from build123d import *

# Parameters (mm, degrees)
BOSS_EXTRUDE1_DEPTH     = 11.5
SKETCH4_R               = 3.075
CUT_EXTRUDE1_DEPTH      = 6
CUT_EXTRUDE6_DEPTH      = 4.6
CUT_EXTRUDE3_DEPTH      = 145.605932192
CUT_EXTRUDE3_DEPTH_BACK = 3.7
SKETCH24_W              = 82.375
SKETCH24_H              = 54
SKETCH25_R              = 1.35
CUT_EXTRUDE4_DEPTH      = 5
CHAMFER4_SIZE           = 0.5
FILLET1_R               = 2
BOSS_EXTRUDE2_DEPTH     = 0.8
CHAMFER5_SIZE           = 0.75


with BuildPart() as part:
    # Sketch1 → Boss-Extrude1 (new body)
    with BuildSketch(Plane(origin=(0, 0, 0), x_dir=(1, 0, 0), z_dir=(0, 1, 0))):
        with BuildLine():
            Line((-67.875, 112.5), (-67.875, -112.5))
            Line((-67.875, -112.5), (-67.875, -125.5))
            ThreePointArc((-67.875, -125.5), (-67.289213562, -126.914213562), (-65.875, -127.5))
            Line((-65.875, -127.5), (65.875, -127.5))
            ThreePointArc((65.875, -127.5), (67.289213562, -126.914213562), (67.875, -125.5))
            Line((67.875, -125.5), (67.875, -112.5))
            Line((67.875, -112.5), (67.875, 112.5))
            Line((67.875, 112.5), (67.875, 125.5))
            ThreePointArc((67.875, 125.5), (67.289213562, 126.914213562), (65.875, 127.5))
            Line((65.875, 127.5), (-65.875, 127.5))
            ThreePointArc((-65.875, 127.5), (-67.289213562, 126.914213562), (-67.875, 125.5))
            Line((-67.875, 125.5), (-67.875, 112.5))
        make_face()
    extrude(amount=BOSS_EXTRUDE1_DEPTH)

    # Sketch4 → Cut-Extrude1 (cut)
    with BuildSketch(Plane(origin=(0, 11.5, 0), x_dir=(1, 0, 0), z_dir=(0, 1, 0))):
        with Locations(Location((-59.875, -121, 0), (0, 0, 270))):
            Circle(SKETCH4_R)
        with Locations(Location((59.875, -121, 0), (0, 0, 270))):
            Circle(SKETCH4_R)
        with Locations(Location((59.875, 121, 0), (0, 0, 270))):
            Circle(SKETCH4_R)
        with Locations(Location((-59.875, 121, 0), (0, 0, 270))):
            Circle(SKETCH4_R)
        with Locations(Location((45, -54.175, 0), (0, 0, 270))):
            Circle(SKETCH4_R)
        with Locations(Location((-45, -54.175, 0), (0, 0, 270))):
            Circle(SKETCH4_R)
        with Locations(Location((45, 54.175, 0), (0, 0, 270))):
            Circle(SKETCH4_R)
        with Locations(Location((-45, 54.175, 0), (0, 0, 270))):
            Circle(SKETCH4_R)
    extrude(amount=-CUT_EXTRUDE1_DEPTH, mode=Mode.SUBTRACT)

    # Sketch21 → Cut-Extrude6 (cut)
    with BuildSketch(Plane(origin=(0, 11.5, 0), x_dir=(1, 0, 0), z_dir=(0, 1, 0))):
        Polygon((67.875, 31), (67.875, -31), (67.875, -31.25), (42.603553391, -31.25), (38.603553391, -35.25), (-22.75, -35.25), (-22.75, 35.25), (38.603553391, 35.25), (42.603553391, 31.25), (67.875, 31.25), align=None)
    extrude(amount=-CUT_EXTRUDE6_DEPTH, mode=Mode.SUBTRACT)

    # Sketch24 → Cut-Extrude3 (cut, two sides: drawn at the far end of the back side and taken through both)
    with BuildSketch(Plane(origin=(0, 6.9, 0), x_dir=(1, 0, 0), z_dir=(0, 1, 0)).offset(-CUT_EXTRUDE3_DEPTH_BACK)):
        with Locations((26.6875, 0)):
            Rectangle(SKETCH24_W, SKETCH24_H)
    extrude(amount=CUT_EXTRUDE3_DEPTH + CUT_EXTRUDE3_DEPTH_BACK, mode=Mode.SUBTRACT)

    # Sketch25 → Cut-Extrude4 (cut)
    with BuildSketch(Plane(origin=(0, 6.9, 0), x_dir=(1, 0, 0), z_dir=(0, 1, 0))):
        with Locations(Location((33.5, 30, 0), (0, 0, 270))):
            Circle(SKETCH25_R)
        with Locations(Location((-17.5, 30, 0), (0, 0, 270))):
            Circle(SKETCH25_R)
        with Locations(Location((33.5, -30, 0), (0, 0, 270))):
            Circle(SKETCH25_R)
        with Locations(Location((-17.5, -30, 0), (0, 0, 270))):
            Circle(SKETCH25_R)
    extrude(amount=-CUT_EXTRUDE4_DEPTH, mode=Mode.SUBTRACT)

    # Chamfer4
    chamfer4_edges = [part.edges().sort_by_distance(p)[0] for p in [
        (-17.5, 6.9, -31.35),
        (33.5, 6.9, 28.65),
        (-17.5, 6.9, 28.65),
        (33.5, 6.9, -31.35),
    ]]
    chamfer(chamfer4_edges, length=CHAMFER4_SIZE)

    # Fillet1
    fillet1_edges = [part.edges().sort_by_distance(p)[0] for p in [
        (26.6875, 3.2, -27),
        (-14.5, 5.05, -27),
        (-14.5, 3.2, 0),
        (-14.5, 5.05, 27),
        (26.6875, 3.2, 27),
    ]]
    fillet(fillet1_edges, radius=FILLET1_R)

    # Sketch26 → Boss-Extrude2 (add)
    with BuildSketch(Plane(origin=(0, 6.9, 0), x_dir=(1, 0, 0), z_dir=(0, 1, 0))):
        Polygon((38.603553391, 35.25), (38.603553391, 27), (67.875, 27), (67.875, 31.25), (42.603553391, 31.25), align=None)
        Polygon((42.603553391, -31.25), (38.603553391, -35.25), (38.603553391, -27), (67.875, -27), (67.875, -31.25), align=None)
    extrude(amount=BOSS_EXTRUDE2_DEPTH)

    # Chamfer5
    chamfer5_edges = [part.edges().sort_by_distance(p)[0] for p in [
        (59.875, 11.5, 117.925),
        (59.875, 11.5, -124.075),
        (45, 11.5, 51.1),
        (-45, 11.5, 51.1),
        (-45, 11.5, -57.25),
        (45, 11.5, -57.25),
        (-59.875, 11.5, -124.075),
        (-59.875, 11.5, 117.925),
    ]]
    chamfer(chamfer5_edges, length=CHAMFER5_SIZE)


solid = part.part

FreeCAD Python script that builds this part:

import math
import FreeCAD as App
import Part
import Sketcher

V = App.Vector
Q = App.Units.Quantity


def edges_at(feature, points):
    """Names of the edges that pass closest to the given points."""
    edges = feature.Shape.Edges
    near = lambda p: min(range(len(edges)), key=lambda i: edges[i].distToShape(Part.Vertex(*p))[0])
    return sorted({f"Edge{near(p) + 1}" for p in points})


def add_polygon(sketch, points):
    """Adds a closed chain of lines whose ends are joined by coincident constraints."""
    first, n = sketch.GeometryCount, len(points)
    for a, b in zip(points, points[1:] + points[:1]):
        sketch.addGeometry(Part.LineSegment(App.Vector(*a, 0), App.Vector(*b, 0)), False)
    for i in range(n):
        sketch.addConstraint(Sketcher.Constraint("Coincident", first + i, 2, first + (i + 1) % n, 1))

doc = App.newDocument("Part")
body = doc.addObject("PartDesign::Body", "Body")

sketch1 = body.newObject("Sketcher::SketchObject", "Sketch")
sketch1.AttachmentSupport = (doc.getObject("XZ_Plane"), [""])
sketch1.MapMode = "FlatFace"
sketch1.addGeometry(Part.ArcOfCircle(Part.Circle(V(-65.9, 125.5, 0), V(0, 0, 1), 2), math.radians(90), math.radians(180)), False)
sketch1.addGeometry(Part.LineSegment(V(-65.9, 127.5, 0), V(65.9, 127.5, 0)), False)
sketch1.addGeometry(Part.ArcOfCircle(Part.Circle(V(65.9, 125.5, 0), V(0, 0, 1), 2), math.radians(0), math.radians(90)), False)
sketch1.addGeometry(Part.LineSegment(V(67.9, 125.5, 0), V(67.9, -125.5, 0)), False)
sketch1.addGeometry(Part.ArcOfCircle(Part.Circle(V(65.9, -125.5, 0), V(0, 0, 1), 2), math.radians(-90), math.radians(0)), False)
sketch1.addGeometry(Part.LineSegment(V(65.9, -127.5, 0), V(-65.9, -127.5, 0)), False)
sketch1.addGeometry(Part.ArcOfCircle(Part.Circle(V(-65.9, -125.5, 0), V(0, 0, 1), 2), math.radians(-180), math.radians(-90)), False)
sketch1.addGeometry(Part.LineSegment(V(-67.9, -125.5, 0), V(-67.9, 125.5, 0)), False)
sketch1.addConstraint(Sketcher.Constraint("Tangent", 0, 1, 1, 1))
sketch1.addConstraint(Sketcher.Constraint("Tangent", 1, 2, 2, 2))
sketch1.addConstraint(Sketcher.Constraint("Tangent", 2, 1, 3, 1))
sketch1.addConstraint(Sketcher.Constraint("Tangent", 3, 2, 4, 2))
sketch1.addConstraint(Sketcher.Constraint("Tangent", 4, 1, 5, 1))
sketch1.addConstraint(Sketcher.Constraint("Tangent", 5, 2, 6, 2))
sketch1.addConstraint(Sketcher.Constraint("Tangent", 6, 1, 7, 1))
sketch1.addConstraint(Sketcher.Constraint("Tangent", 7, 2, 0, 2))
sketch1.addConstraint(Sketcher.Constraint("Horizontal", 1))
sketch1.addConstraint(Sketcher.Constraint("Vertical", 3))
sketch1.addConstraint(Sketcher.Constraint("Horizontal", 5))
sketch1.addConstraint(Sketcher.Constraint("Vertical", 7))
sketch1.addConstraint(Sketcher.Constraint("Equal", 0, 2))
sketch1.addConstraint(Sketcher.Constraint("Equal", 2, 4))
sketch1.addConstraint(Sketcher.Constraint("Equal", 4, 6))
sketch1.addConstraint(Sketcher.Constraint("Symmetric", 0, 3, 4, 3, -1, 1))
sketch1.addConstraint(Sketcher.Constraint("Radius", 0, Q("2 mm")))
sketch1.addConstraint(Sketcher.Constraint("DistanceY", 3, 2, 3, 1, Q("251 mm")))
sketch1.addConstraint(Sketcher.Constraint("DistanceX", 1, 1, 1, 2, Q("131.75 mm")))
pad1 = body.newObject("PartDesign::Pad", "Pad")
pad1.Profile = sketch1
pad1.Length = 11.5
pad1.Reversed = True

sketch2 = body.newObject("Sketcher::SketchObject", "Sketch001")
sketch2.AttachmentSupport = (doc.getObject("XZ_Plane"), [""])
sketch2.MapMode = "FlatFace"
sketch2.AttachmentOffset = App.Placement(V(0, 0, -11.5), App.Rotation())
sketch2.addGeometry(Part.Circle(V(-59.9, 121, 0), V(0, 0, 1), 3.1), False)
sketch2.addGeometry(Part.Circle(V(59.9, 121, 0), V(0, 0, 1), 3.1), False)
sketch2.addGeometry(Part.Circle(V(59.9, -121, 0), V(0, 0, 1), 3.1), False)
sketch2.addGeometry(Part.Circle(V(-59.9, -121, 0), V(0, 0, 1), 3.1), False)
sketch2.addGeometry(Part.Circle(V(45, 54.2, 0), V(0, 0, 1), 3.1), False)
sketch2.addGeometry(Part.Circle(V(-45, 54.2, 0), V(0, 0, 1), 3.1), False)
sketch2.addGeometry(Part.Circle(V(45, -54.2, 0), V(0, 0, 1), 3.1), False)
sketch2.addGeometry(Part.Circle(V(-45, -54.2, 0), V(0, 0, 1), 3.1), False)
sketch2.addConstraint(Sketcher.Constraint("Equal", 0, 1))
sketch2.addConstraint(Sketcher.Constraint("Equal", 1, 2))
sketch2.addConstraint(Sketcher.Constraint("Equal", 2, 3))
sketch2.addConstraint(Sketcher.Constraint("Equal", 3, 4))
sketch2.addConstraint(Sketcher.Constraint("Equal", 4, 5))
sketch2.addConstraint(Sketcher.Constraint("Equal", 5, 6))
sketch2.addConstraint(Sketcher.Constraint("Equal", 6, 7))
sketch2.addConstraint(Sketcher.Constraint("Symmetric", 0, 3, 2, 3, -1, 1))
sketch2.addConstraint(Sketcher.Constraint("Symmetric", 1, 3, 3, 3, -1, 1))
sketch2.addConstraint(Sketcher.Constraint("Symmetric", 5, 3, 6, 3, -1, 1))
sketch2.addConstraint(Sketcher.Constraint("Symmetric", 4, 3, 7, 3, -1, 1))
sketch2.addConstraint(Sketcher.Constraint("Symmetric", 0, 3, 1, 3, -2))
sketch2.addConstraint(Sketcher.Constraint("Symmetric", 4, 3, 5, 3, -2))
sketch2.addConstraint(Sketcher.Constraint("Diameter", 0, Q("6.15 mm")))
sketch2.addConstraint(Sketcher.Constraint("DistanceY", -1, 1, 0, 3, Q("121 mm")))
sketch2.addConstraint(Sketcher.Constraint("DistanceX", -1, 1, 4, 3, Q("45 mm")))
sketch2.addConstraint(Sketcher.Constraint("DistanceX", 0, 3, 1, 3, Q("119.75 mm")))
sketch2.addConstraint(Sketcher.Constraint("DistanceY", 6, 3, 4, 3, Q("108.35 mm")))
pocket1 = body.newObject("PartDesign::Pocket", "Pocket")
pocket1.Profile = sketch2
pocket1.Length = 6
pocket1.Reversed = True

sketch3 = body.newObject("Sketcher::SketchObject", "Sketch002")
sketch3.AttachmentSupport = (doc.getObject("XZ_Plane"), [""])
sketch3.MapMode = "FlatFace"
sketch3.AttachmentOffset = App.Placement(V(0, 0, -11.5), App.Rotation())
add_polygon(sketch3, [(68, 31), (68, -31), (43, -31), (39, -35), (-23, -35), (-23, 35), (39, 35), (43, 31)])
sketch3.addConstraint(Sketcher.Constraint("Vertical", 0))
sketch3.addConstraint(Sketcher.Constraint("Horizontal", 1))
sketch3.addConstraint(Sketcher.Constraint("Horizontal", 3))
sketch3.addConstraint(Sketcher.Constraint("Vertical", 4))
sketch3.addConstraint(Sketcher.Constraint("Horizontal", 5))
sketch3.addConstraint(Sketcher.Constraint("Horizontal", 7))
sketch3.addConstraint(Sketcher.Constraint("Symmetric", 2, 2, 5, 2, -1))
sketch3.addConstraint(Sketcher.Constraint("Symmetric", 1, 2, 6, 2, -1))
sketch3.addConstraint(Sketcher.Constraint("Perpendicular", 2, 6))
sketch3.addConstraint(Sketcher.Constraint("DistanceY", 0, 2, 0, 1, Q("62.5 mm")))
sketch3.addConstraint(Sketcher.Constraint("DistanceY", 4, 1, 4, 2, Q("70.5 mm")))
sketch3.addConstraint(Sketcher.Constraint("DistanceX", 3, 2, -1, 1, Q("22.75 mm")))
sketch3.addConstraint(Sketcher.Constraint("DistanceX", -1, 1, 0, 2, Q("67.875 mm")))
sketch3.addConstraint(Sketcher.Constraint("DistanceX", 1, 2, 1, 1, Q("25.271447 mm")))
pocket2 = body.newObject("PartDesign::Pocket", "Pocket001")
pocket2.Profile = sketch3
pocket2.Length = 4.6
pocket2.Reversed = True

sketch4 = body.newObject("Sketcher::SketchObject", "Sketch003")
sketch4.AttachmentSupport = (doc.getObject("XZ_Plane"), [""])
sketch4.MapMode = "FlatFace"
sketch4.AttachmentOffset = App.Placement(V(0, 0, -6.9), App.Rotation())
add_polygon(sketch4, [(-14, -27), (-14, 27), (68, 27), (68, -27)])
sketch4.addConstraint(Sketcher.Constraint("Vertical", 0))
sketch4.addConstraint(Sketcher.Constraint("Horizontal", 1))
sketch4.addConstraint(Sketcher.Constraint("Vertical", 2))
sketch4.addConstraint(Sketcher.Constraint("Horizontal", 3))
sketch4.addConstraint(Sketcher.Constraint("DistanceY", 0, 1, 0, 2, Q("54 mm")))
sketch4.addConstraint(Sketcher.Constraint("DistanceY", -1, 1, 0, 2, Q("27 mm")))
sketch4.addConstraint(Sketcher.Constraint("DistanceX", 0, 2, -1, 1, Q("14.5 mm")))
sketch4.addConstraint(Sketcher.Constraint("DistanceX", 1, 1, 1, 2, Q("82.375 mm")))
pocket3 = body.newObject("PartDesign::Pocket", "Pocket002")
pocket3.Profile = sketch4
pocket3.Type = "TwoLengths"
pocket3.Length = 145.605932
pocket3.Length2 = 3.7

sketch5 = body.newObject("Sketcher::SketchObject", "Sketch004")
sketch5.AttachmentSupport = (doc.getObject("XZ_Plane"), [""])
sketch5.MapMode = "FlatFace"
sketch5.AttachmentOffset = App.Placement(V(0, 0, -6.9), App.Rotation())
sketch5.addGeometry(Part.Circle(V(33.5, -30, 0), V(0, 0, 1), 1.4), False)
sketch5.addGeometry(Part.Circle(V(-17.5, -30, 0), V(0, 0, 1), 1.4), False)
sketch5.addGeometry(Part.Circle(V(33.5, 30, 0), V(0, 0, 1), 1.4), False)
sketch5.addGeometry(Part.Circle(V(-17.5, 30, 0), V(0, 0, 1), 1.4), False)
sketch5.addConstraint(Sketcher.Constraint("Equal", 0, 1))
sketch5.addConstraint(Sketcher.Constraint("Equal", 1, 2))
sketch5.addConstraint(Sketcher.Constraint("Equal", 2, 3))
sketch5.addConstraint(Sketcher.Constraint("Symmetric", 0, 3, 2, 3, -1))
sketch5.addConstraint(Sketcher.Constraint("Symmetric", 1, 3, 3, 3, -1))
sketch5.addConstraint(Sketcher.Constraint("Horizontal", 0, 3, 1, 3))
sketch5.addConstraint(Sketcher.Constraint("Diameter", 0, Q("2.7 mm")))
sketch5.addConstraint(Sketcher.Constraint("DistanceY", 0, 3, -1, 1, Q("30 mm")))
sketch5.addConstraint(Sketcher.Constraint("DistanceX", 1, 3, 0, 3, Q("51 mm")))
sketch5.addConstraint(Sketcher.Constraint("DistanceX", -1, 1, 0, 3, Q("33.5 mm")))
pocket4 = body.newObject("PartDesign::Pocket", "Pocket003")
pocket4.Profile = sketch5
pocket4.Length = 5
pocket4.Reversed = True
doc.recompute()

chamfer = body.newObject("PartDesign::Chamfer", "Chamfer")
chamfer.Base = (pocket4, edges_at(pocket4, [
    (-17.5, 6.9, -31.35),
    (33.5, 6.9, 28.65),
    (-17.5, 6.9, 28.65),
    (33.5, 6.9, -31.35),
]))
chamfer.Size = 0.5
doc.recompute()

fillet = body.newObject("PartDesign::Fillet", "Fillet")
fillet.Base = (chamfer, edges_at(chamfer, [
    (26.688, 3.2, -27),
    (-14.5, 5.05, -27),
    (-14.5, 3.2, 0),
    (-14.5, 5.05, 27),
    (26.688, 3.2, 27),
]))
fillet.Radius = 2

sketch6 = body.newObject("Sketcher::SketchObject", "Sketch005")
sketch6.AttachmentSupport = (doc.getObject("XZ_Plane"), [""])
sketch6.MapMode = "FlatFace"
sketch6.AttachmentOffset = App.Placement(V(0, 0, -6.9), App.Rotation())
add_polygon(sketch6, [(38.6, -35.2), (38.6, -27), (67.9, -27), (67.9, -31.2), (42.6, -31.2)])
add_polygon(sketch6, [(38.6, 35.2), (42.6, 31.2), (67.9, 31.2), (67.9, 27), (38.6, 27)])
sketch6.addConstraint(Sketcher.Constraint("Vertical", 0))
sketch6.addConstraint(Sketcher.Constraint("Horizontal", 1))
sketch6.addConstraint(Sketcher.Constraint("Vertical", 2))
sketch6.addConstraint(Sketcher.Constraint("Horizontal", 3))
sketch6.addConstraint(Sketcher.Constraint("Horizontal", 6))
sketch6.addConstraint(Sketcher.Constraint("Vertical", 7))
sketch6.addConstraint(Sketcher.Constraint("Horizontal", 8))
sketch6.addConstraint(Sketcher.Constraint("Vertical", 9))
sketch6.addConstraint(Sketcher.Constraint("Symmetric", 3, 2, 5, 2, -1))
sketch6.addConstraint(Sketcher.Constraint("Symmetric", 1, 2, 7, 2, -1))
sketch6.addConstraint(Sketcher.Constraint("Symmetric", 4, 2, 9, 2, -1))
sketch6.addConstraint(Sketcher.Constraint("Perpendicular", 4, 5))
sketch6.addConstraint(Sketcher.Constraint("DistanceY", 0, 2, -1, 1, Q("27 mm")))
sketch6.addConstraint(Sketcher.Constraint("DistanceX", 0, 2, 3, 2, Q("4 mm")))
sketch6.addConstraint(Sketcher.Constraint("DistanceY", 0, 1, 0, 2, Q("8.25 mm")))
sketch6.addConstraint(Sketcher.Constraint("DistanceX", -1, 1, 1, 2, Q("67.875 mm")))
sketch6.addConstraint(Sketcher.Constraint("DistanceX", 1, 1, 1, 2, Q("29.271447 mm")))
pad2 = body.newObject("PartDesign::Pad", "Pad001")
pad2.Profile = sketch6
pad2.Length = 0.8
pad2.Reversed = True
doc.recompute()

chamfer2 = body.newObject("PartDesign::Chamfer", "Chamfer001")
chamfer2.Base = (pad2, edges_at(pad2, [
    (59.875, 11.5, 117.925),
    (59.875, 11.5, -124.075),
    (45, 11.5, 51.1),
    (-45, 11.5, 51.1),
    (-45, 11.5, -57.25),
    (45, 11.5, -57.25),
    (-59.875, 11.5, -124.075),
    (-59.875, 11.5, 117.925),
]))
chamfer2.Size = 0.75

doc.recompute()
